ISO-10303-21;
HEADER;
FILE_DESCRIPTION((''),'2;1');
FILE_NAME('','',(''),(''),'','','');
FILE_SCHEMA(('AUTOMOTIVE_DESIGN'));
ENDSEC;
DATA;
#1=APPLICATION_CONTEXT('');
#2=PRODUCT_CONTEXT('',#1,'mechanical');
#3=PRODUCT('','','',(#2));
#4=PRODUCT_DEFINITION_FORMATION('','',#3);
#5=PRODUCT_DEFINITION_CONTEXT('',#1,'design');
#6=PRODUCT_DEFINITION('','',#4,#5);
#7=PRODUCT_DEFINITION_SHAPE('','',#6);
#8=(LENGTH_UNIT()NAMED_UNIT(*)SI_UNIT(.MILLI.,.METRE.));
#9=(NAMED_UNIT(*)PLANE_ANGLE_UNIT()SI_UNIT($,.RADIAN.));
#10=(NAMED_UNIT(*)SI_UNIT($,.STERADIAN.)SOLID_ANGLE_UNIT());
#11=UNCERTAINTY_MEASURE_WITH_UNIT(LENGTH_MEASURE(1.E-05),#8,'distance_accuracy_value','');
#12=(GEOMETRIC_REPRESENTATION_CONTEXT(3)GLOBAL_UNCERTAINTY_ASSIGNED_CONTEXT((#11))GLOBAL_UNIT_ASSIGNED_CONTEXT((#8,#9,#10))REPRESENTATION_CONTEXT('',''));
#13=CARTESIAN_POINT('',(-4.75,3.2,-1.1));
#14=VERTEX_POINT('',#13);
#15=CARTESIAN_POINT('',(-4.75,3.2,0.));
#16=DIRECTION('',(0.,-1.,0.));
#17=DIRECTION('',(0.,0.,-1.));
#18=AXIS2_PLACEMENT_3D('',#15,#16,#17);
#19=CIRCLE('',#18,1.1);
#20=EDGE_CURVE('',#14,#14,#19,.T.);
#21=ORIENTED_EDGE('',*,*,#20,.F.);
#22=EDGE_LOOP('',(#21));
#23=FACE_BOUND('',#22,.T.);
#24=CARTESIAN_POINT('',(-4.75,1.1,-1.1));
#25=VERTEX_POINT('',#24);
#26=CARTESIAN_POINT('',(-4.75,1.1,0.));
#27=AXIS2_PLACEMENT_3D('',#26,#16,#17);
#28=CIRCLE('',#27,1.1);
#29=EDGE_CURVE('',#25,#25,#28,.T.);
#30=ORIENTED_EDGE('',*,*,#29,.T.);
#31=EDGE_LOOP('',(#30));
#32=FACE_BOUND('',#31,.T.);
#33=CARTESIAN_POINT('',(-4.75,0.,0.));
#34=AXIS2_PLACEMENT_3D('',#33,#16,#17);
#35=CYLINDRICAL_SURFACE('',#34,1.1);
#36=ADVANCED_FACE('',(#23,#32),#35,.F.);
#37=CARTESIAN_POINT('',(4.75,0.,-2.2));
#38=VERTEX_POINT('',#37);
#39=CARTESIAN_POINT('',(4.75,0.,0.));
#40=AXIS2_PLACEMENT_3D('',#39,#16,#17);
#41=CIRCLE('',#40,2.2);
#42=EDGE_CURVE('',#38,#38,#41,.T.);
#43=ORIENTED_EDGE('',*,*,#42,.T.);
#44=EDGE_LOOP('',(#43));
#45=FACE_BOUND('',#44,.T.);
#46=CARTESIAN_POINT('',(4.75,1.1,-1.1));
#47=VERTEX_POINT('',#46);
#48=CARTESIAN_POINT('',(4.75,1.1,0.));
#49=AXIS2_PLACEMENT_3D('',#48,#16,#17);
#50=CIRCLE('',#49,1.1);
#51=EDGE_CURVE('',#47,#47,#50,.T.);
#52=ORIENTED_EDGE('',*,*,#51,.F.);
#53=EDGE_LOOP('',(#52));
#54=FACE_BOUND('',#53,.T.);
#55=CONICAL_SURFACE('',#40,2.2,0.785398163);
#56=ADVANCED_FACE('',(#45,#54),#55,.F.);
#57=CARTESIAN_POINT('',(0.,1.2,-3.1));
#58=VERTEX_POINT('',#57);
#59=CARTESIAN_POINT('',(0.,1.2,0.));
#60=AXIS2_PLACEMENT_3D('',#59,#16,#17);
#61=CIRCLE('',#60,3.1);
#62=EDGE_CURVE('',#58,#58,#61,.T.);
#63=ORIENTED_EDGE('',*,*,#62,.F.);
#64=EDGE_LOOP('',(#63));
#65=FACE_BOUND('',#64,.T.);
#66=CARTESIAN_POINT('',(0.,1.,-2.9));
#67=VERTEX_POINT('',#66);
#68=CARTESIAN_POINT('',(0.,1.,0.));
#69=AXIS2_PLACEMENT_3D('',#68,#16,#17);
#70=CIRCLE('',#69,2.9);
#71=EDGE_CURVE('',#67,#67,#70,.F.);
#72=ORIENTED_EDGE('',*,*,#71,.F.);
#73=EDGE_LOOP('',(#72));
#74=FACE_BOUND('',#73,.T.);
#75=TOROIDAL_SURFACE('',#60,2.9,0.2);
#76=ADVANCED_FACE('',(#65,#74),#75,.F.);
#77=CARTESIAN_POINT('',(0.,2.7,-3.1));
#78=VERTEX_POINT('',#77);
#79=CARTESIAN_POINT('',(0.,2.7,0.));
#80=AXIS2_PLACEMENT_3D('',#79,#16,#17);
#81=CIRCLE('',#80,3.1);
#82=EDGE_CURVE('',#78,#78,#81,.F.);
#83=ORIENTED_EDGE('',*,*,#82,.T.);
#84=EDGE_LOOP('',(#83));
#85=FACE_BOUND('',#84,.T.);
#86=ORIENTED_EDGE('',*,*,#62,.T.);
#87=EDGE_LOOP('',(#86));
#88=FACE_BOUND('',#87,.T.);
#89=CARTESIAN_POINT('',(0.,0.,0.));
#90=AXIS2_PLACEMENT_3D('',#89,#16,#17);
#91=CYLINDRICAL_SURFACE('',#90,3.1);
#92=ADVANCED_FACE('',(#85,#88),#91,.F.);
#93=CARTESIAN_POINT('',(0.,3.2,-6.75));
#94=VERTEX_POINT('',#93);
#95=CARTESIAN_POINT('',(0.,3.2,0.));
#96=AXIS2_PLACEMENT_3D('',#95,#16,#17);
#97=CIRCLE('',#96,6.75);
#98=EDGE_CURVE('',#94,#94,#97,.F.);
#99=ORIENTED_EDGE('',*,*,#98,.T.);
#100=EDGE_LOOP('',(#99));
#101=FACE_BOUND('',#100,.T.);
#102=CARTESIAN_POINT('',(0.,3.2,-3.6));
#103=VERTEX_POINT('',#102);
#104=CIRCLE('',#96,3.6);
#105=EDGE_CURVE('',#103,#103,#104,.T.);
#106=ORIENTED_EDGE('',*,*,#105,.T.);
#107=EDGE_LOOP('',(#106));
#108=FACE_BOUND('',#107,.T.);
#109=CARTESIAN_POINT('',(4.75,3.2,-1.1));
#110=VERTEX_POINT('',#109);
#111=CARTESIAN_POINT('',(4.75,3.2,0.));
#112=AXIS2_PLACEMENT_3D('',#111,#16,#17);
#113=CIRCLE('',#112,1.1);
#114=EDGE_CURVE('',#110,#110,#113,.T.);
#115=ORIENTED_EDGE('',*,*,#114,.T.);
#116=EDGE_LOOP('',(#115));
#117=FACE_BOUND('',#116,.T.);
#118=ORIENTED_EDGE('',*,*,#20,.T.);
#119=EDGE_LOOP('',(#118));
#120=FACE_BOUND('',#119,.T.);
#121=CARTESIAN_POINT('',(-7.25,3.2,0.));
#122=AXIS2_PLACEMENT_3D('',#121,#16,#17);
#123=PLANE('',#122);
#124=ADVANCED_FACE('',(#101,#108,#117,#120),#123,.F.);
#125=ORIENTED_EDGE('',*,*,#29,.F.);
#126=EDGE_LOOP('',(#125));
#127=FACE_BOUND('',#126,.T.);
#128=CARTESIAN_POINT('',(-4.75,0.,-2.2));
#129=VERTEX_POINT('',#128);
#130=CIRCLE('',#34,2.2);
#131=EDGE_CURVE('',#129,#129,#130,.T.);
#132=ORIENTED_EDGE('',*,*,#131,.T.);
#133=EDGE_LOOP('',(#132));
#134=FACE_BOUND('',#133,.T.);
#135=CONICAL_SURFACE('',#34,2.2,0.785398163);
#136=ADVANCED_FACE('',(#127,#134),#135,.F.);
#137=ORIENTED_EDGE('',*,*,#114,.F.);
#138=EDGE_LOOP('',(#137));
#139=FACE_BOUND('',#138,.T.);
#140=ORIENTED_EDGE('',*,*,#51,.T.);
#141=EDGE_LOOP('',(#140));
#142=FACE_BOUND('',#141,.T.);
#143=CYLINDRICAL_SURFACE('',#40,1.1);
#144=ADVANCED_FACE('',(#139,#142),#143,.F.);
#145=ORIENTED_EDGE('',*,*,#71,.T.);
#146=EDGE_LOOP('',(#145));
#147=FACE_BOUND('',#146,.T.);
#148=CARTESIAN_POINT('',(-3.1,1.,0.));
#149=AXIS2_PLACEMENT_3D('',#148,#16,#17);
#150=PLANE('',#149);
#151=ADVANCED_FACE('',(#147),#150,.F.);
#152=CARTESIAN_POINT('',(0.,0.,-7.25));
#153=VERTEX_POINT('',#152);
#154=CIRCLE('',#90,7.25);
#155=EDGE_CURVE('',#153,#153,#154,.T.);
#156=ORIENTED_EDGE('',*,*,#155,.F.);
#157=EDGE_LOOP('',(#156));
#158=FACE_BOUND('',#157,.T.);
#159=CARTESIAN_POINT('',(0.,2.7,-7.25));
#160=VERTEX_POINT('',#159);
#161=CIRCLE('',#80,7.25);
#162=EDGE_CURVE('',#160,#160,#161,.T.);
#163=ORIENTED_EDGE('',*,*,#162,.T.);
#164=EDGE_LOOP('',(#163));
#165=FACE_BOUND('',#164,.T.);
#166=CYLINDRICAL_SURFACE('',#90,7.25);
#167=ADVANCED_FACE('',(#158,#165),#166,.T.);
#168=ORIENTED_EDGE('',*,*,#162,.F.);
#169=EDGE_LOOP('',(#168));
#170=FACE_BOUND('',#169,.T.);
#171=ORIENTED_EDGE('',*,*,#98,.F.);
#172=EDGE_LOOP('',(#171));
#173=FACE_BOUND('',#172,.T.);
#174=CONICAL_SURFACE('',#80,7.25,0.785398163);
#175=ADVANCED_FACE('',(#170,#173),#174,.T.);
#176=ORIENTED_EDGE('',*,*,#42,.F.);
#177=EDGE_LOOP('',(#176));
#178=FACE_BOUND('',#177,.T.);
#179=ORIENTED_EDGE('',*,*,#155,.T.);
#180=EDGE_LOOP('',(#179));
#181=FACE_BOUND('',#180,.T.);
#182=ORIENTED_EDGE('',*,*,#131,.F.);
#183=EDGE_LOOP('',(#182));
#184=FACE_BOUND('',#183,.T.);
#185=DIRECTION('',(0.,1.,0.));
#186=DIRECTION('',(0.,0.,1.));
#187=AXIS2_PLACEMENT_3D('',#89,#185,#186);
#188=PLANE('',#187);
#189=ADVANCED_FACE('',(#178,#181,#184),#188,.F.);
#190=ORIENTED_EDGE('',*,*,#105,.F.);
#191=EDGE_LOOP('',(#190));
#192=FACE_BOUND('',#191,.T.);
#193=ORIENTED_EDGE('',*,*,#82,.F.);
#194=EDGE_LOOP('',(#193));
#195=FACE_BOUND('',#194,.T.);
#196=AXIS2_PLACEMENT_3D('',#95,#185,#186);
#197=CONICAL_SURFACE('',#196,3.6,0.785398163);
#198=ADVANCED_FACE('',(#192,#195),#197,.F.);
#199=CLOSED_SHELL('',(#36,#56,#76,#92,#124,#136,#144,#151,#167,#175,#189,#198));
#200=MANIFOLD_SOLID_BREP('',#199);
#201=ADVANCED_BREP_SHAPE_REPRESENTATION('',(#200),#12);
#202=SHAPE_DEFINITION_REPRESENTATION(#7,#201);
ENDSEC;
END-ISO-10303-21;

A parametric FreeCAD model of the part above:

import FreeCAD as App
import Part
import Sketcher
Q = App.Units.Quantity


def edges_at(feature, points):
    """Names of the edges that pass closest to the given points."""
    edges = feature.Shape.Edges
    near = lambda p: min(range(len(edges)), key=lambda i: edges[i].distToShape(Part.Vertex(*p))[0])
    return sorted({f"Edge{near(p) + 1}" for p in points})

doc = App.newDocument("Part")
body = doc.addObject("PartDesign::Body", "Body")

sketch1 = body.newObject("Sketcher::SketchObject", "Sketch")
sketch1.AttachmentSupport = (doc.getObject("XY_Plane"), [""])
sketch1.MapMode = "FlatFace"
sketch1.addGeometry(Part.LineSegment(App.Vector(-7.2, 0, 0), App.Vector(0, 0, 0)), False)
sketch1.addGeometry(Part.LineSegment(App.Vector(0, 0, 0), App.Vector(0, 1, 0)), False)
sketch1.addGeometry(Part.LineSegment(App.Vector(0, 1, 0), App.Vector(-3.1, 1, 0)), False)
sketch1.addGeometry(Part.LineSegment(App.Vector(-3.1, 1, 0), App.Vector(-3.1, 3.2, 0)), False)
sketch1.addGeometry(Part.LineSegment(App.Vector(-3.1, 3.2, 0), App.Vector(-7.2, 3.2, 0)), False)
sketch1.addGeometry(Part.LineSegment(App.Vector(-7.2, 3.2, 0), App.Vector(-7.2, 0, 0)), False)
sketch1.addConstraint(Sketcher.Constraint("Coincident", 0, 2, 1, 1))
sketch1.addConstraint(Sketcher.Constraint("Coincident", 1, 2, 2, 1))
sketch1.addConstraint(Sketcher.Constraint("Coincident", 2, 2, 3, 1))
sketch1.addConstraint(Sketcher.Constraint("Coincident", 3, 2, 4, 1))
sketch1.addConstraint(Sketcher.Constraint("Coincident", 4, 2, 5, 1))
sketch1.addConstraint(Sketcher.Constraint("Coincident", 5, 2, 0, 1))
sketch1.addConstraint(Sketcher.Constraint("Horizontal", 0))
sketch1.addConstraint(Sketcher.Constraint("Vertical", 1))
sketch1.addConstraint(Sketcher.Constraint("Horizontal", 2))
sketch1.addConstraint(Sketcher.Constraint("Vertical", 3))
sketch1.addConstraint(Sketcher.Constraint("Horizontal", 4))
sketch1.addConstraint(Sketcher.Constraint("Vertical", 5))
sketch1.addConstraint(Sketcher.Constraint("Coincident", 0, 2, -1, 1))
sketch1.addConstraint(Sketcher.Constraint("DistanceY", 1, 1, 1, 2, 1.0))
sketch1.addConstraint(Sketcher.Constraint("DistanceX", 2, 2, 2, 1, 3.1))
sketch1.addConstraint(Sketcher.Constraint("DistanceY", 3, 1, 3, 2, 2.2))
sketch1.addConstraint(Sketcher.Constraint("DistanceX", 0, 1, 0, 2, 7.25))
revolution = body.newObject("PartDesign::Revolution", "Revolution")
revolution.Profile = sketch1
revolution.ReferenceAxis = (sketch1, ["V_Axis"])
revolution.Angle = 360
doc.recompute()

chamfer = body.newObject("PartDesign::Chamfer", "Chamfer")
chamfer.Base = (revolution, edges_at(revolution, [(0, 3.2, 3.1)]))
chamfer.Size = 0.5

sketch2 = body.newObject("Sketcher::SketchObject", "Sketch001")
sketch2.AttachmentSupport = (doc.getObject("YZ_Plane"), [""])
sketch2.MapMode = "FlatFace"
sketch2.AttachmentOffset = App.Placement(App.Vector(0, 0, -4.75), App.Rotation())
sketch2.addGeometry(Part.LineSegment(App.Vector(5.7, 0, 0), App.Vector(0, 0, 0)), False)
sketch2.addGeometry(Part.LineSegment(App.Vector(0, 0, 0), App.Vector(0, -2.2, 0)), False)
sketch2.addGeometry(Part.LineSegment(App.Vector(0, -2.2, 0), App.Vector(1.1, -1.1, 0)), False)
sketch2.addGeometry(Part.LineSegment(App.Vector(1.1, -1.1, 0), App.Vector(5, -1.1, 0)), False)
sketch2.addGeometry(Part.LineSegment(App.Vector(5, -1.1, 0), App.Vector(5.7, 0, 0)), False)
sketch2.addConstraint(Sketcher.Constraint("Coincident", 0, 2, 1, 1))
sketch2.addConstraint(Sketcher.Constraint("Coincident", 1, 2, 2, 1))
sketch2.addConstraint(Sketcher.Constraint("Coincident", 2, 2, 3, 1))
sketch2.addConstraint(Sketcher.Constraint("Coincident", 3, 2, 4, 1))
sketch2.addConstraint(Sketcher.Constraint("Coincident", 4, 2, 0, 1))
sketch2.addConstraint(Sketcher.Constraint("Horizontal", 0))
sketch2.addConstraint(Sketcher.Constraint("Vertical", 1))
sketch2.addConstraint(Sketcher.Constraint("Horizontal", 3))
sketch2.addConstraint(Sketcher.Constraint("Coincident", 0, 2, -1, 1))
sketch2.addConstraint(Sketcher.Constraint("Angle", 2, Q("45 deg")))
sketch2.addConstraint(Sketcher.Constraint("Angle", 4, Q("59 deg")))
sketch2.addConstraint(Sketcher.Constraint("DistanceX", 3, 1, 3, 2, 3.9))
sketch2.addConstraint(Sketcher.Constraint("DistanceY", 1, 2, 1, 1, 2.2))
sketch2.addConstraint(Sketcher.Constraint("DistanceX", -1, 1, 3, 2, 5.0))
groove = body.newObject("PartDesign::Groove", "Groove")
groove.Profile = sketch2
groove.ReferenceAxis = (sketch2, ["H_Axis"])
groove.Angle = 360
doc.recompute()

polarpattern = body.newObject("PartDesign::PolarPattern", "PolarPattern")
polarpattern.Originals = [groove]
polarpattern.Axis = (doc.getObject("Y_Axis"), [""])
polarpattern.Angle = 360
polarpattern.Occurrences = 2
body.Tip = polarpattern
doc.recompute()

chamfer2 = body.newObject("PartDesign::Chamfer", "Chamfer001")
chamfer2.Base = (polarpattern, edges_at(polarpattern, [(0, 3.2, 7.25)]))
chamfer2.Size = 0.5
doc.recompute()

fillet = body.newObject("PartDesign::Fillet", "Fillet")
fillet.Base = (chamfer2, edges_at(chamfer2, [(0, 1, 3.1)]))
fillet.Radius = 0.2

doc.recompute()
